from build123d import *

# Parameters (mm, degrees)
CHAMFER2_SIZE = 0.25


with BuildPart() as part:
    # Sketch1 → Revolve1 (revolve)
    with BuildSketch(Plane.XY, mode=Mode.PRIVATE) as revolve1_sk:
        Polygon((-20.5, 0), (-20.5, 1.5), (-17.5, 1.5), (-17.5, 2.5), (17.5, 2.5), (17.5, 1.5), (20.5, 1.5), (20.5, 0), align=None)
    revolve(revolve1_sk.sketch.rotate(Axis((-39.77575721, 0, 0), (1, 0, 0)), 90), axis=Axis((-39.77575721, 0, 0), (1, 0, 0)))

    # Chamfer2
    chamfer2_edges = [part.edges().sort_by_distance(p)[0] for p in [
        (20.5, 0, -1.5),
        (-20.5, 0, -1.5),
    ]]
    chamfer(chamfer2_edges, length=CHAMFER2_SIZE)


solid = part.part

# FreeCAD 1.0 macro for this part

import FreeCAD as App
import Part
import Sketcher
from FreeCAD import Vector
Q = App.Units.Quantity


def edges_at(feature, points):
    """Names of the edges that pass closest to the given points."""
    edges = feature.Shape.Edges
    near = lambda p: min(range(len(edges)), key=lambda i: edges[i].distToShape(Part.Vertex(*p))[0])
    return sorted({f"Edge{near(p) + 1}" for p in points})

doc = App.newDocument("Part")
body = doc.addObject("PartDesign::Body", "Body")

# Sketch on XY plane
sketch1 = doc.addObject("Sketcher::SketchObject", "Sketch")
body.addObject(sketch1)
sketch1.AttachmentSupport = (doc.XY_Plane, [""])
sketch1.MapMode = "FlatFace"
sketch1.addGeometry(Part.LineSegment(Vector(-20.5, 1.5, 0), Vector(-20.5, 0, 0)), False)
sketch1.addGeometry(Part.LineSegment(Vector(-20.5, 0, 0), Vector(20.5, 0, 0)), False)
sketch1.addGeometry(Part.LineSegment(Vector(20.5, 0, 0), Vector(20.5, 1.5, 0)), False)
sketch1.addGeometry(Part.LineSegment(Vector(20.5, 1.5, 0), Vector(17.5, 1.5, 0)), False)
sketch1.addGeometry(Part.LineSegment(Vector(17.5, 1.5, 0), Vector(17.5, 2.5, 0)), False)
sketch1.addGeometry(Part.LineSegment(Vector(17.5, 2.5, 0), Vector(-17.5, 2.5, 0)), False)
sketch1.addGeometry(Part.LineSegment(Vector(-17.5, 2.5, 0), Vector(-17.5, 1.5, 0)), False)
sketch1.addGeometry(Part.LineSegment(Vector(-17.5, 1.5, 0), Vector(-20.5, 1.5, 0)), False)
sketch1.addConstraint(Sketcher.Constraint("Coincident", 0, 2, 1, 1))
sketch1.addConstraint(Sketcher.Constraint("Coincident", 1, 2, 2, 1))
sketch1.addConstraint(Sketcher.Constraint("Coincident", 2, 2, 3, 1))
sketch1.addConstraint(Sketcher.Constraint("Coincident", 3, 2, 4, 1))
sketch1.addConstraint(Sketcher.Constraint("Coincident", 4, 2, 5, 1))
sketch1.addConstraint(Sketcher.Constraint("Coincident", 5, 2, 6, 1))
sketch1.addConstraint(Sketcher.Constraint("Coincident", 6, 2, 7, 1))
sketch1.addConstraint(Sketcher.Constraint("Coincident", 7, 2, 0, 1))
sketch1.addConstraint(Sketcher.Constraint("Vertical", 0))
sketch1.addConstraint(Sketcher.Constraint("Horizontal", 1))
sketch1.addConstraint(Sketcher.Constraint("Vertical", 2))
sketch1.addConstraint(Sketcher.Constraint("Horizontal", 3))
sketch1.addConstraint(Sketcher.Constraint("Vertical", 4))
sketch1.addConstraint(Sketcher.Constraint("Horizontal", 5))
sketch1.addConstraint(Sketcher.Constraint("Vertical", 6))
sketch1.addConstraint(Sketcher.Constraint("Horizontal", 7))
sketch1.addConstraint(Sketcher.Constraint("Symmetric", 0, 2, 1, 2, -1, 1))
sketch1.addConstraint(Sketcher.Constraint("Symmetric", 3, 2, 6, 2, -2))
sketch1.addConstraint(Sketcher.Constraint("DistanceX", 1, 1, 1, 2, Q("41 mm")))
sketch1.addConstraint(Sketcher.Constraint("DistanceX", 3, 2, 3, 1, Q("3 mm")))
sketch1.addConstraint(Sketcher.Constraint("DistanceY", 4, 1, 4, 2, Q("1 mm")))
sketch1.addConstraint(Sketcher.Constraint("DistanceY", 0, 2, 0, 1, Q("1.5 mm")))
revolution = doc.addObject("PartDesign::Revolution", "Revolution")
body.addObject(revolution)
revolution.Profile = sketch1
revolution.ReferenceAxis = (sketch1, ["H_Axis"])
revolution.Angle = 360
doc.recompute()

chamfer = doc.addObject("PartDesign::Chamfer", "Chamfer")
body.addObject(chamfer)
chamfer.Base = (revolution, edges_at(revolution, [(20.5, 0, -1.5), (-20.5, 0, -1.5)]))
chamfer.Size = 0.25

doc.recompute()
